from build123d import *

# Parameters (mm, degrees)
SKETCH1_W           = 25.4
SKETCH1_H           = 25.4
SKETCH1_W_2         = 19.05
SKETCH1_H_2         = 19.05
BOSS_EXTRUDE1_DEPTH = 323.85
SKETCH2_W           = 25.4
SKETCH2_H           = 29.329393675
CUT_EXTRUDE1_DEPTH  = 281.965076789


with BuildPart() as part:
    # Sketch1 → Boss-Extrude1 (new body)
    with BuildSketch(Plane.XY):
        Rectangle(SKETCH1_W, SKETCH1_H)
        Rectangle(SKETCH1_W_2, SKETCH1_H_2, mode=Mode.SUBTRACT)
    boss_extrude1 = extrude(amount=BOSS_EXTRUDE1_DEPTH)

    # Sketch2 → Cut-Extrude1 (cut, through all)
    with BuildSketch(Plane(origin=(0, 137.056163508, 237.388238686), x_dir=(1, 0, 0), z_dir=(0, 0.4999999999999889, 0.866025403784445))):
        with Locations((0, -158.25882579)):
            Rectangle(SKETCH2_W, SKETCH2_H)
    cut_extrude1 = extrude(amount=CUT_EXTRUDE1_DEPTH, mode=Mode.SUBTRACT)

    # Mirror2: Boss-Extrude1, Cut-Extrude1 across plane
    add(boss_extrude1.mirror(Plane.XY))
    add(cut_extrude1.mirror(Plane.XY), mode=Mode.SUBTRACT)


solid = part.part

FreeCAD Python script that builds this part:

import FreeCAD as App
import Part
import Sketcher
from FreeCAD import Vector
Q = App.Units.Quantity

doc = App.newDocument("Part")
body = doc.addObject("PartDesign::Body", "Body")

sketch1 = body.newObject("Sketcher::SketchObject", "Sketch")
sketch1.AttachmentSupport = (doc.getObject("XY_Plane"), [""])
sketch1.MapMode = "FlatFace"
sketch1.addGeometry([
    Part.LineSegment(Vector(-12.7, 12.7, 0), Vector(-12.7, -12.7, 0)),
    Part.LineSegment(Vector(-12.7, -12.7, 0), Vector(12.7, -12.7, 0)),
    Part.LineSegment(Vector(12.7, -12.7, 0), Vector(12.7, 12.7, 0)),
    Part.LineSegment(Vector(12.7, 12.7, 0), Vector(-12.7, 12.7, 0)),
    Part.LineSegment(Vector(9.525, -9.525, 0), Vector(-9.525, -9.525, 0)),
    Part.LineSegment(Vector(-9.525, -9.525, 0), Vector(-9.525, 9.525, 0)),
    Part.LineSegment(Vector(-9.525, 9.525, 0), Vector(9.525, 9.525, 0)),
    Part.LineSegment(Vector(9.525, 9.525, 0), Vector(9.525, -9.525, 0)),
], False)
sketch1.addConstraint([
    Sketcher.Constraint("Coincident", 0, 2, 1, 1),
    Sketcher.Constraint("Coincident", 1, 2, 2, 1),
    Sketcher.Constraint("Coincident", 2, 2, 3, 1),
    Sketcher.Constraint("Coincident", 3, 2, 0, 1),
    Sketcher.Constraint("Coincident", 4, 2, 5, 1),
    Sketcher.Constraint("Coincident", 5, 2, 6, 1),
    Sketcher.Constraint("Coincident", 6, 2, 7, 1),
    Sketcher.Constraint("Coincident", 7, 2, 4, 1),
    Sketcher.Constraint("Vertical", 0),
    Sketcher.Constraint("Horizontal", 1),
    Sketcher.Constraint("Vertical", 2),
    Sketcher.Constraint("Horizontal", 3),
    Sketcher.Constraint("Horizontal", 4),
    Sketcher.Constraint("Vertical", 5),
    Sketcher.Constraint("Horizontal", 6),
    Sketcher.Constraint("Vertical", 7),
    Sketcher.Constraint("Symmetric", 0, 2, 2, 2, -1, 1),
    Sketcher.Constraint("Symmetric", 4, 2, 6, 2, -1, 1),
    Sketcher.Constraint("Equal", 3, 0),
    Sketcher.Constraint("Equal", 6, 5),
    Sketcher.Constraint("DistanceX", 1, 1, 1, 2, Q("1 in")),
    Sketcher.Constraint("DistanceX", 4, 2, 4, 1, Q("0.75 in")),
])
pad1 = body.newObject("PartDesign::Pad", "Pad")
pad1.Profile = sketch1
pad1.Length = Q("12.75 in")

sketch2 = body.newObject("Sketcher::SketchObject", "Sketch001")
sketch2.Placement = App.Placement(Vector(0, 137.056164, 237.388239), App.Rotation(Vector(1, 0, 0), Vector(0, 0.866025404, -0.5), Vector(0, 0.5, 0.866025404), "ZXY"))
sketch2.addGeometry([
    Part.LineSegment(Vector(-12.7, -143.594129, 0), Vector(-12.7, -172.923523, 0)),
    Part.LineSegment(Vector(-12.7, -172.923523, 0), Vector(12.7, -172.923523, 0)),
    Part.LineSegment(Vector(12.7, -172.923523, 0), Vector(12.7, -143.594129, 0)),
    Part.LineSegment(Vector(12.7, -143.594129, 0), Vector(-12.7, -143.594129, 0)),
], False)
sketch2.addConstraint([
    Sketcher.Constraint("Coincident", 0, 2, 1, 1),
    Sketcher.Constraint("Coincident", 1, 2, 2, 1),
    Sketcher.Constraint("Coincident", 2, 2, 3, 1),
    Sketcher.Constraint("Coincident", 3, 2, 0, 1),
    Sketcher.Constraint("Vertical", 0),
    Sketcher.Constraint("Horizontal", 1),
    Sketcher.Constraint("Vertical", 2),
    Sketcher.Constraint("Horizontal", 3),
    Sketcher.Constraint("DistanceX", 1, 1, 1, 2, Q("1 in")),
    Sketcher.Constraint("DistanceX", 0, 2, -1, 1, Q("0.5 in")),
    Sketcher.Constraint("DistanceY", 0, 2, 0, 1, Q("29.329394 mm")),
    Sketcher.Constraint("DistanceY", 2, 2, -1, 1, Q("143.594129 mm")),
])
pocket1 = body.newObject("PartDesign::Pocket", "Pocket")
pocket1.Profile = sketch2
pocket1.Type = "ThroughAll"
pocket1.Reversed = True
doc.recompute()

mirrored = body.newObject("PartDesign::Mirrored", "Mirrored")
mirrored.Originals = [pad1, pocket1]
mirrored.MirrorPlane = (doc.getObject("XY_Plane"), [""])
body.Tip = mirrored

doc.recompute()
